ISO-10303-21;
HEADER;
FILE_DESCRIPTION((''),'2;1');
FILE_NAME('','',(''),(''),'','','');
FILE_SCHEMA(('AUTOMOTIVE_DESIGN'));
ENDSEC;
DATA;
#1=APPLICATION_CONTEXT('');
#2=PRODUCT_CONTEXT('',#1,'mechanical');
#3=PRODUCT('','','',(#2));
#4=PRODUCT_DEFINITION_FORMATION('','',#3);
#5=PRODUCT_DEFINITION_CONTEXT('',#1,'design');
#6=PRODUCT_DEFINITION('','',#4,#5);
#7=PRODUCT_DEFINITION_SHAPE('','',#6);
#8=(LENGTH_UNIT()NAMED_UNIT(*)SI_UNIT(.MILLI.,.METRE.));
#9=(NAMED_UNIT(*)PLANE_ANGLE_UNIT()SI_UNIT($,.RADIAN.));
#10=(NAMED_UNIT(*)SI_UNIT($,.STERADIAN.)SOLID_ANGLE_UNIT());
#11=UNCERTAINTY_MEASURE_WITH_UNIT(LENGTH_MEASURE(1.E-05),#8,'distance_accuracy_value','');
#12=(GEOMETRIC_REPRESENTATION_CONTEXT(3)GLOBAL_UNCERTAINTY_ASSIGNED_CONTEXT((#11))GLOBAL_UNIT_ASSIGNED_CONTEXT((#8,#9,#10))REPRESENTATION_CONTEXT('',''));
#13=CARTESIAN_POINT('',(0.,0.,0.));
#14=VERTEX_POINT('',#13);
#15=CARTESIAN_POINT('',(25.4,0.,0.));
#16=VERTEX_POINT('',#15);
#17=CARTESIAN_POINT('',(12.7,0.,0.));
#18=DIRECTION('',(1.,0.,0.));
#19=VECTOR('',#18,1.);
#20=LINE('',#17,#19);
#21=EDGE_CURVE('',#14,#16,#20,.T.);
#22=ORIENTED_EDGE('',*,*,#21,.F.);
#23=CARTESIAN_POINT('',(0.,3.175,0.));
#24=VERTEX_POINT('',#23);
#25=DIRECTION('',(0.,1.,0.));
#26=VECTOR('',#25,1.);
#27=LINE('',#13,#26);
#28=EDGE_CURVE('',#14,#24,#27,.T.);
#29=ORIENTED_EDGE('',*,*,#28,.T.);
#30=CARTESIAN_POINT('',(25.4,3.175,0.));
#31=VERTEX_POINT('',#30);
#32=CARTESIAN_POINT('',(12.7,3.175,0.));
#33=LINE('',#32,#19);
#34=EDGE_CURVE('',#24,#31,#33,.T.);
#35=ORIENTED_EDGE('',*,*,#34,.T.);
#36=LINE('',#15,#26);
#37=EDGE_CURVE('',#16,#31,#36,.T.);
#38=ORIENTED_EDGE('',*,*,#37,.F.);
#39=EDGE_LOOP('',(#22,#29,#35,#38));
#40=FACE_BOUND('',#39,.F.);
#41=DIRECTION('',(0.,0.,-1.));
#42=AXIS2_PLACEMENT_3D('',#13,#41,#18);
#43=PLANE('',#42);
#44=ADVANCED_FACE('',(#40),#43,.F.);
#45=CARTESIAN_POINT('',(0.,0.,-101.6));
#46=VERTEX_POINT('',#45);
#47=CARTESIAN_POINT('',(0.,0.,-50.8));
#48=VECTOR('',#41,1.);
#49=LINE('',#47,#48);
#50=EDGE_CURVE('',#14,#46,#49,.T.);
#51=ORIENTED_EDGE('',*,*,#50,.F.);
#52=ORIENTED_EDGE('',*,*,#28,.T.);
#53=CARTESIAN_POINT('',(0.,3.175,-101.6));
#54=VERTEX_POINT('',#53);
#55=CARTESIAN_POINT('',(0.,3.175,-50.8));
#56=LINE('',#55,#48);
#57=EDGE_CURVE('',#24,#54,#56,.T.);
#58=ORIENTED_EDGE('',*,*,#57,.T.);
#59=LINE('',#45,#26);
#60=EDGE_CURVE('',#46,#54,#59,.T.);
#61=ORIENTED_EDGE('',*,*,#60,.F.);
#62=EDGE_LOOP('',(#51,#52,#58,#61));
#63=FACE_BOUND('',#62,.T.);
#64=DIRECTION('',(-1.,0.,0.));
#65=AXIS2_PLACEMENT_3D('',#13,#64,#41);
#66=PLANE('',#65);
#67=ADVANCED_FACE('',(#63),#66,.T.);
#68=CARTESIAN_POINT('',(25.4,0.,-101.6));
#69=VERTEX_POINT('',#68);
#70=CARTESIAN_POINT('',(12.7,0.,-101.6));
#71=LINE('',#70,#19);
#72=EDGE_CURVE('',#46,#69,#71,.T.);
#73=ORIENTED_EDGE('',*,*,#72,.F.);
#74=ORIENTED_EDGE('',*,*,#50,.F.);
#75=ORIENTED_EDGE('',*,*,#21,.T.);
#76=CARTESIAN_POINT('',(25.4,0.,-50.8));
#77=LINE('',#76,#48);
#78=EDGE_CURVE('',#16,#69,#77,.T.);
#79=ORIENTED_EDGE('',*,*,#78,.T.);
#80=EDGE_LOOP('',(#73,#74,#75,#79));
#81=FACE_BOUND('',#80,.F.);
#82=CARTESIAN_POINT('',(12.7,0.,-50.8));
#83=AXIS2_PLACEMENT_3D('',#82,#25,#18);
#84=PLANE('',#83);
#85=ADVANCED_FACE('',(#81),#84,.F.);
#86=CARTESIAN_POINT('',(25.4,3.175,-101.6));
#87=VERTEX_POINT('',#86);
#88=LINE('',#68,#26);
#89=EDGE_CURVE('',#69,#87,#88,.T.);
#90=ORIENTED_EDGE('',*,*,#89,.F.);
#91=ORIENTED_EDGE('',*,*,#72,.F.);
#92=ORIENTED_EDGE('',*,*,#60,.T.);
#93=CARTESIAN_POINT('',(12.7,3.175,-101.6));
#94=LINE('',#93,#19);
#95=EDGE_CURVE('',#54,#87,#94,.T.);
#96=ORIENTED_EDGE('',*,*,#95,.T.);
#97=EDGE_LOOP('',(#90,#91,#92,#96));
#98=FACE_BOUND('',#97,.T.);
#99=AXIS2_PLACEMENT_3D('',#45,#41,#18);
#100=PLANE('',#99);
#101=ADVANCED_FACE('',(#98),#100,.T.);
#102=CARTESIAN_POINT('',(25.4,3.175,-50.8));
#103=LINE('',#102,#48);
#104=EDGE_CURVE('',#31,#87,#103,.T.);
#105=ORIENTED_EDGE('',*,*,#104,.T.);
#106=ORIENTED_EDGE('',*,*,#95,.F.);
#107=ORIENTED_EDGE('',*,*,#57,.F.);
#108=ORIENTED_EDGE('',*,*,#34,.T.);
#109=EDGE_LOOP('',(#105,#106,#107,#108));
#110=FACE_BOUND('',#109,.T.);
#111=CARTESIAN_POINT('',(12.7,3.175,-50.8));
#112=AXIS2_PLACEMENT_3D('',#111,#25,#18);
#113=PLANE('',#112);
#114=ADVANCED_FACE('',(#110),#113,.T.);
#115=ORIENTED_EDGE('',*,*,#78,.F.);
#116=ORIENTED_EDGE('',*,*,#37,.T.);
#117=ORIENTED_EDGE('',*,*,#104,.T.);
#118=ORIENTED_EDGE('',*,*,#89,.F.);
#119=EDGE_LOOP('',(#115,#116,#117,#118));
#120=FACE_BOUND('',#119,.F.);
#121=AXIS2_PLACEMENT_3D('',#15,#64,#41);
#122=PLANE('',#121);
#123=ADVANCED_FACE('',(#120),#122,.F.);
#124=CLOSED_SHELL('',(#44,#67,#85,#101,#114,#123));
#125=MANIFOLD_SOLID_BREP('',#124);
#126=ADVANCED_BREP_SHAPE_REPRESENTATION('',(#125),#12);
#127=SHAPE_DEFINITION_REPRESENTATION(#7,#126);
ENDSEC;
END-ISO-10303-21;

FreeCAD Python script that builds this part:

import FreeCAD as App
import Part
import Sketcher
from FreeCAD import Vector
Q = App.Units.Quantity


def add_polygon(sketch, points):
    """Adds a closed chain of lines whose ends are joined by coincident constraints."""
    first, n = sketch.GeometryCount, len(points)
    for a, b in zip(points, points[1:] + points[:1]):
        sketch.addGeometry(Part.LineSegment(App.Vector(*a, 0), App.Vector(*b, 0)), False)
    for i in range(n):
        sketch.addConstraint(Sketcher.Constraint("Coincident", first + i, 2, first + (i + 1) % n, 1))

doc = App.newDocument("Part")
body = doc.addObject("PartDesign::Body", "Body")

# Sketch on XZ plane
sketch1 = body.newObject("Sketcher::SketchObject", "Sketch")
sketch1.AttachmentSupport = (doc.getObject("XZ_Plane"), [""])
sketch1.MapMode = "FlatFace"
add_polygon(sketch1, [(0, -101.6), (0, 0), (25.4, 0), (25.4, -101.6)])  # lines 0-3
sketch1.addConstraint([
    Sketcher.Constraint("Vertical", 0),
    Sketcher.Constraint("Horizontal", 1),
    Sketcher.Constraint("Vertical", 2),
    Sketcher.Constraint("Horizontal", 3),
    Sketcher.Constraint("Coincident", 0, 2, -1, 1),
    Sketcher.Constraint("DistanceX", 1, 1, 1, 2, Q("1 in")),
    Sketcher.Constraint("DistanceY", 0, 1, 0, 2, Q("4 in")),
])
pad1 = body.newObject("PartDesign::Pad", "Pad")
pad1.Profile = sketch1
pad1.Length = Q("0.125 in")
pad1.Reversed = True

doc.recompute()
